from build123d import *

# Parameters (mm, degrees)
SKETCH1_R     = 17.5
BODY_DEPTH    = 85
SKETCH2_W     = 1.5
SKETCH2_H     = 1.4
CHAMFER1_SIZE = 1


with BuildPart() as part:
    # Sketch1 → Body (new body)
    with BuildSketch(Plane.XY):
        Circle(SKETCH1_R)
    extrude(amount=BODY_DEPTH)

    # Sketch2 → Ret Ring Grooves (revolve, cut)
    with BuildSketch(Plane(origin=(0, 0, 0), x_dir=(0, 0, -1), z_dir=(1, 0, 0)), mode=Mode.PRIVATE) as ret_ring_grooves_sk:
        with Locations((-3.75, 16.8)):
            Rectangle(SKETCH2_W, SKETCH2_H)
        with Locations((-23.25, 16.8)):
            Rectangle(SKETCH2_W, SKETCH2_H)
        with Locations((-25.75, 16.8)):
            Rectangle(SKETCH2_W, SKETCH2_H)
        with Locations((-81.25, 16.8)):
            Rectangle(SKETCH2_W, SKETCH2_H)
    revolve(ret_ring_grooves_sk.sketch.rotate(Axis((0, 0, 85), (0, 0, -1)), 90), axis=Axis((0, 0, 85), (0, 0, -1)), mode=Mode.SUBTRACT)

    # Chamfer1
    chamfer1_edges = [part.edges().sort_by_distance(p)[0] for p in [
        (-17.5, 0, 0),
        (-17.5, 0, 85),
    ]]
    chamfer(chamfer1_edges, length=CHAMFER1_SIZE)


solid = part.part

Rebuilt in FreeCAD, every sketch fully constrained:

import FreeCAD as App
import Part
import Sketcher


def edges_at(feature, points):
    """Names of the edges that pass closest to the given points."""
    edges = feature.Shape.Edges
    near = lambda p: min(range(len(edges)), key=lambda i: edges[i].distToShape(Part.Vertex(*p))[0])
    return sorted({f"Edge{near(p) + 1}" for p in points})


def add_polygon(sketch, points):
    """Adds a closed chain of lines whose ends are joined by coincident constraints."""
    first, n = sketch.GeometryCount, len(points)
    for a, b in zip(points, points[1:] + points[:1]):
        sketch.addGeometry(Part.LineSegment(App.Vector(*a, 0), App.Vector(*b, 0)), False)
    for i in range(n):
        sketch.addConstraint(Sketcher.Constraint("Coincident", first + i, 2, first + (i + 1) % n, 1))

doc = App.newDocument("Part")
params = doc.addObject("Spreadsheet::Sheet", "Params")
for row, (alias, value) in enumerate([
    ("sketch1_diameter", "35 mm"),
    ("pad1_length", "85 mm"),
    ("sketch2_width", "1.4 mm"),
    ("sketch2_height", "1.5 mm"),
    ("groove_angle", "360 deg"),
    ("chamfer_size", "1 mm"),
], start=1):
    params.set(f"A{row}", alias)
    params.set(f"B{row}", "=" + value)
    params.setAlias(f"B{row}", alias)

body = doc.addObject("PartDesign::Body", "Body")

# Sketch on XY plane
sketch1 = body.newObject("Sketcher::SketchObject", "Sketch")
sketch1.AttachmentSupport = (doc.getObject("XY_Plane"), [""])
sketch1.MapMode = "FlatFace"
sketch1.addGeometry(Part.Circle(App.Vector(0, 0, 0), App.Vector(0, 0, 1), 17.5), False)
sketch1.addConstraint([
    Sketcher.Constraint("Coincident", 0, 3, -1, 1),
    Sketcher.Constraint("Diameter", 0, 35.0),
])
sketch1.setExpression("Constraints[1]", "Params.sketch1_diameter")
pad1 = body.newObject("PartDesign::Pad", "Pad")
pad1.Profile = sketch1
pad1.setExpression("Length", "Params.pad1_length")

# Sketch on YZ plane
sketch2 = body.newObject("Sketcher::SketchObject", "Sketch001")
sketch2.AttachmentSupport = (doc.getObject("YZ_Plane"), [""])
sketch2.MapMode = "FlatFace"
add_polygon(sketch2, [(17.5, 4.5), (16.1, 4.5), (16.1, 3), (17.5, 3)])  # lines 0-3
add_polygon(sketch2, [(17.5, 24), (16.1, 24), (16.1, 22.5), (17.5, 22.5)])  # lines 4-7
add_polygon(sketch2, [(17.5, 26.5), (16.1, 26.5), (16.1, 25), (17.5, 25)])  # lines 8-11
add_polygon(sketch2, [(17.5, 82), (16.1, 82), (16.1, 80.5), (17.5, 80.5)])  # lines 12-15
sketch2.addConstraint([
    Sketcher.Constraint("Horizontal", 0),
    Sketcher.Constraint("Vertical", 1),
    Sketcher.Constraint("Horizontal", 2),
    Sketcher.Constraint("Vertical", 3),
    Sketcher.Constraint("Horizontal", 4),
    Sketcher.Constraint("Vertical", 5),
    Sketcher.Constraint("Horizontal", 6),
    Sketcher.Constraint("Vertical", 7),
    Sketcher.Constraint("Horizontal", 8),
    Sketcher.Constraint("Vertical", 9),
    Sketcher.Constraint("Horizontal", 10),
    Sketcher.Constraint("Vertical", 11),
    Sketcher.Constraint("Horizontal", 12),
    Sketcher.Constraint("Vertical", 13),
    Sketcher.Constraint("Horizontal", 14),
    Sketcher.Constraint("Vertical", 15),
    Sketcher.Constraint("Vertical", 1, 2, 4, 2),
    Sketcher.Constraint("Vertical", 3, 2, 6, 2),
    Sketcher.Constraint("Vertical", 5, 2, 8, 2),
    Sketcher.Constraint("Vertical", 7, 2, 10, 2),
    Sketcher.Constraint("Vertical", 9, 2, 12, 2),
    Sketcher.Constraint("Vertical", 11, 2, 14, 2),
    Sketcher.Constraint("Equal", 3, 5),
    Sketcher.Constraint("Equal", 7, 9),
    Sketcher.Constraint("Equal", 11, 13),
    Sketcher.Constraint("DistanceX", 0, 2, 0, 1, 1.4),
    Sketcher.Constraint("DistanceY", 1, 2, 1, 1, 1.5),
    Sketcher.Constraint("DistanceY", -1, 1, 1, 2, 3.0),
    Sketcher.Constraint("DistanceY", -1, 1, 4, 2, 24.0),
    Sketcher.Constraint("DistanceY", -1, 1, 9, 2, 25.0),
    Sketcher.Constraint("DistanceY", -1, 1, 12, 2, 82.0),
    Sketcher.Constraint("DistanceX", -1, 1, 0, 2, 16.1),
])
sketch2.setExpression("Constraints[41]", "Params.sketch2_width")
sketch2.setExpression("Constraints[42]", "Params.sketch2_height")
groove = body.newObject("PartDesign::Groove", "Groove")
groove.Profile = sketch2
groove.ReferenceAxis = (sketch2, ["V_Axis"])
groove.setExpression("Angle", "Params.groove_angle")
doc.recompute()

chamfer = body.newObject("PartDesign::Chamfer", "Chamfer")
chamfer.Base = (groove, edges_at(groove, [(-17.5, 0, 0), (-17.5, 0, 85)]))
chamfer.setExpression("Size", "Params.chamfer_size")

doc.recompute()
